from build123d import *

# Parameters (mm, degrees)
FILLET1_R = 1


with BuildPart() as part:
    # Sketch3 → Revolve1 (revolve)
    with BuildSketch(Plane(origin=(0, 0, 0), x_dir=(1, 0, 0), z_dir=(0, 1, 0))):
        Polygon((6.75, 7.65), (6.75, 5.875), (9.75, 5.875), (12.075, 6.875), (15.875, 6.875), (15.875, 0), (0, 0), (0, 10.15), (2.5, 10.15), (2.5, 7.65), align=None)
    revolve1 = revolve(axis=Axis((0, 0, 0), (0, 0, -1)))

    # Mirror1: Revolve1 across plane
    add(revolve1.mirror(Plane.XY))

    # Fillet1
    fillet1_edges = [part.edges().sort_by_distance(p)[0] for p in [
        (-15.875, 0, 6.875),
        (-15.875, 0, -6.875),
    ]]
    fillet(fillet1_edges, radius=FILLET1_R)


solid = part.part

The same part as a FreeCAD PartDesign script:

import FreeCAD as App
import Part
import Sketcher


def edges_at(feature, points):
    """Names of the edges that pass closest to the given points."""
    edges = feature.Shape.Edges
    near = lambda p: min(range(len(edges)), key=lambda i: edges[i].distToShape(Part.Vertex(*p))[0])
    return sorted({f"Edge{near(p) + 1}" for p in points})

doc = App.newDocument("Part")
params = doc.addObject("Spreadsheet::Sheet", "Params")
for row, (alias, value) in enumerate([
    ("sketch1_width", "3 mm"),
    ("sketch1_width2", "2.5 mm"),
    ("sketch1_width3", "3.8 mm"),
    ("sketch1_width4", "4.25 mm"),
    ("sketch1_height", "10.15 mm"),
    ("revolution_angle", "360 deg"),
    ("fillet_radius", "1 mm"),
], start=1):
    params.set(f"A{row}", alias)
    params.set(f"B{row}", "=" + value)
    params.setAlias(f"B{row}", alias)

body = doc.addObject("PartDesign::Body", "Body")

sketch1 = doc.addObject("Sketcher::SketchObject", "Sketch")
body.addObject(sketch1)
sketch1.AttachmentSupport = (doc.XZ_Plane, [""])
sketch1.MapMode = "FlatFace"
sketch1.addGeometry([
    Part.LineSegment(App.Vector(6.8, -5.9, 0), App.Vector(6.8, -7.7, 0)),
    Part.LineSegment(App.Vector(6.8, -7.7, 0), App.Vector(2.5, -7.7, 0)),
    Part.LineSegment(App.Vector(2.5, -7.7, 0), App.Vector(2.5, -10.2, 0)),
    Part.LineSegment(App.Vector(2.5, -10.2, 0), App.Vector(0, -10.2, 0)),
    Part.LineSegment(App.Vector(0, -10.2, 0), App.Vector(0, 0, 0)),
    Part.LineSegment(App.Vector(0, 0, 0), App.Vector(15.9, 0, 0)),
    Part.LineSegment(App.Vector(15.9, 0, 0), App.Vector(15.9, -6.9, 0)),
    Part.LineSegment(App.Vector(15.9, -6.9, 0), App.Vector(12.1, -6.9, 0)),
    Part.LineSegment(App.Vector(12.1, -6.9, 0), App.Vector(9.8, -5.9, 0)),
    Part.LineSegment(App.Vector(9.8, -5.9, 0), App.Vector(6.8, -5.9, 0)),
], False)
sketch1.addConstraint([
    Sketcher.Constraint("Coincident", 0, 2, 1, 1),
    Sketcher.Constraint("Coincident", 1, 2, 2, 1),
    Sketcher.Constraint("Coincident", 2, 2, 3, 1),
    Sketcher.Constraint("Coincident", 3, 2, 4, 1),
    Sketcher.Constraint("Coincident", 4, 2, 5, 1),
    Sketcher.Constraint("Coincident", 5, 2, 6, 1),
    Sketcher.Constraint("Coincident", 6, 2, 7, 1),
    Sketcher.Constraint("Coincident", 7, 2, 8, 1),
    Sketcher.Constraint("Coincident", 8, 2, 9, 1),
    Sketcher.Constraint("Coincident", 9, 2, 0, 1),
    Sketcher.Constraint("Vertical", 0),
    Sketcher.Constraint("Horizontal", 1),
    Sketcher.Constraint("Vertical", 2),
    Sketcher.Constraint("Horizontal", 3),
    Sketcher.Constraint("Vertical", 4),
    Sketcher.Constraint("Horizontal", 5),
    Sketcher.Constraint("Vertical", 6),
    Sketcher.Constraint("Horizontal", 7),
    Sketcher.Constraint("Horizontal", 9),
    Sketcher.Constraint("Coincident", 4, 2, -1, 1),
    Sketcher.Constraint("Equal", 3, 2),
    Sketcher.Constraint("DistanceX", 9, 2, 9, 1, 3.0),
    Sketcher.Constraint("DistanceX", 3, 2, 3, 1, 2.5),
    Sketcher.Constraint("DistanceX", 7, 2, 7, 1, 3.8),
    Sketcher.Constraint("DistanceY", 7, 2, 8, 2, 1.0),
    Sketcher.Constraint("DistanceX", 1, 2, 1, 1, 4.25),
    Sketcher.Constraint("DistanceY", 4, 1, 4, 2, 10.15),
    Sketcher.Constraint("DistanceX", 5, 1, 5, 2, 15.875),
    Sketcher.Constraint("DistanceY", 0, 2, 0, 1, 1.775),
])
sketch1.setExpression("Constraints[21]", "Params.sketch1_width")
sketch1.setExpression("Constraints[22]", "Params.sketch1_width2")
sketch1.setExpression("Constraints[23]", "Params.sketch1_width3")
sketch1.setExpression("Constraints[25]", "Params.sketch1_width4")
sketch1.setExpression("Constraints[26]", "Params.sketch1_height")
revolution = doc.addObject("PartDesign::Revolution", "Revolution")
body.addObject(revolution)
revolution.Profile = sketch1
revolution.ReferenceAxis = (sketch1, ["V_Axis"])
revolution.setExpression("Angle", "Params.revolution_angle")
doc.recompute()

mirrored = doc.addObject("PartDesign::Mirrored", "Mirrored")
body.addObject(mirrored)
mirrored.Originals = [revolution]
mirrored.MirrorPlane = (doc.XY_Plane, [""])
body.Tip = mirrored
doc.recompute()

fillet = doc.addObject("PartDesign::Fillet", "Fillet")
body.addObject(fillet)
fillet.Base = (mirrored, edges_at(mirrored, [(-15.875, 0, 6.875), (-15.875, 0, -6.875)]))
fillet.setExpression("Radius", "Params.fillet_radius")

doc.recompute()
